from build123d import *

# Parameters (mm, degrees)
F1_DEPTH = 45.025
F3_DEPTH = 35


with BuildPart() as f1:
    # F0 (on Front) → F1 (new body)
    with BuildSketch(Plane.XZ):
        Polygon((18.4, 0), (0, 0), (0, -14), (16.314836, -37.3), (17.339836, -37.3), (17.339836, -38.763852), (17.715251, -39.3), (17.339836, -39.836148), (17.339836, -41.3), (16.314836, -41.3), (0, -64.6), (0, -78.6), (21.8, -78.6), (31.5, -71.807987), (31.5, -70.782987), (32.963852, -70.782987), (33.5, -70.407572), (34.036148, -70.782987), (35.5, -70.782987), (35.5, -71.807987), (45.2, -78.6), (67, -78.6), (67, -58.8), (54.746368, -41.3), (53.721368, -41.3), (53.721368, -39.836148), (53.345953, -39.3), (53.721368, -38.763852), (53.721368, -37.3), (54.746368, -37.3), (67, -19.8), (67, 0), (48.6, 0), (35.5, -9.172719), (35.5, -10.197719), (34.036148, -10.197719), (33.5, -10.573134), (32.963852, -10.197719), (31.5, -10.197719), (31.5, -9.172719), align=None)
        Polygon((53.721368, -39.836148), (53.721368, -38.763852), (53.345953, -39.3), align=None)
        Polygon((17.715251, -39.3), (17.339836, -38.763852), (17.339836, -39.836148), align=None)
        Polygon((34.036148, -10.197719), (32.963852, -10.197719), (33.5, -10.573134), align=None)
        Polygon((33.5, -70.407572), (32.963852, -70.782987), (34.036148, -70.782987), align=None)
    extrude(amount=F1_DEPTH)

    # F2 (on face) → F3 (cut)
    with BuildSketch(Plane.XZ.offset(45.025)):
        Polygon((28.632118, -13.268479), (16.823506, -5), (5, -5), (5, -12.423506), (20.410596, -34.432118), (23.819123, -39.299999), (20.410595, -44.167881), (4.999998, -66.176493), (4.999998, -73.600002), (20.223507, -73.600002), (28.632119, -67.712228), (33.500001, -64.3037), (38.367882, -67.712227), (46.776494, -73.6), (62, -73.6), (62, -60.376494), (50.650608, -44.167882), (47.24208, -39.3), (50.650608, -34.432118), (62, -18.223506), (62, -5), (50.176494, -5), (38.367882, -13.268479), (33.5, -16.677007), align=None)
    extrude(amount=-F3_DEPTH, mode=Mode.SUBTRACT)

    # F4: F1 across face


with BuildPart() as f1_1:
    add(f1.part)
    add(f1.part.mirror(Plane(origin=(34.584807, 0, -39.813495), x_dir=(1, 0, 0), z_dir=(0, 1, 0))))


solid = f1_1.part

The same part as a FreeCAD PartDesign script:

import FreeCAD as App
import Part
import Sketcher
from FreeCAD import Vector
Q = App.Units.Quantity


def add_polygon(sketch, points):
    """Adds a closed chain of lines whose ends are joined by coincident constraints."""
    first, n = sketch.GeometryCount, len(points)
    for a, b in zip(points, points[1:] + points[:1]):
        sketch.addGeometry(Part.LineSegment(App.Vector(*a, 0), App.Vector(*b, 0)), False)
    for i in range(n):
        sketch.addConstraint(Sketcher.Constraint("Coincident", first + i, 2, first + (i + 1) % n, 1))

doc = App.newDocument("Part")
body = doc.addObject("PartDesign::Body", "Body")

sketch1 = body.newObject("Sketcher::SketchObject", "Sketch")
sketch1.AttachmentSupport = (doc.getObject("XZ_Plane"), [""])
sketch1.MapMode = "FlatFace"
add_polygon(sketch1, [(18.4, 0), (0, 0), (0, -14), (16.314836, -37.3), (17.339836, -37.3), (17.339836, -41.3), (16.314836, -41.3), (0, -64.6), (0, -78.6), (21.8, -78.6), (31.5, -71.807987), (31.5, -70.782987), (35.5, -70.782987), (35.5, -71.807987), (45.2, -78.6), (67, -78.6), (67, -58.8), (54.746368, -41.3), (53.721368, -41.3), (53.721368, -37.3), (54.746368, -37.3), (67, -19.8), (67, 0), (48.6, 0), (35.5, -9.172719), (35.5, -10.197719), (31.5, -10.197719), (31.5, -9.172719)])
sketch1.addConstraint([
    Sketcher.Constraint("Horizontal", 0),
    Sketcher.Constraint("Vertical", 1),
    Sketcher.Constraint("Horizontal", 3),
    Sketcher.Constraint("Vertical", 4),
    Sketcher.Constraint("Horizontal", 5),
    Sketcher.Constraint("Vertical", 7),
    Sketcher.Constraint("Horizontal", 8),
    Sketcher.Constraint("Vertical", 10),
    Sketcher.Constraint("Horizontal", 11),
    Sketcher.Constraint("Vertical", 12),
    Sketcher.Constraint("Horizontal", 14),
    Sketcher.Constraint("Vertical", 15),
    Sketcher.Constraint("Horizontal", 17),
    Sketcher.Constraint("Vertical", 18),
    Sketcher.Constraint("Horizontal", 19),
    Sketcher.Constraint("Vertical", 21),
    Sketcher.Constraint("Horizontal", 22),
    Sketcher.Constraint("Vertical", 24),
    Sketcher.Constraint("Horizontal", 25),
    Sketcher.Constraint("Vertical", 26),
    Sketcher.Constraint("Coincident", 0, 2, -1, 1),
    Sketcher.Constraint("PointOnObject", 6, 2, -2),
    Sketcher.Constraint("PointOnObject", 21, 2, -1),
    Sketcher.Constraint("Perpendicular", 2, 9),
    Sketcher.Constraint("Perpendicular", 6, 13),
    Sketcher.Constraint("Perpendicular", 9, 16),
    Sketcher.Constraint("Perpendicular", 13, 20),
    Sketcher.Constraint("Perpendicular", 16, 23),
    Sketcher.Constraint("Perpendicular", 20, 27),
    Sketcher.Constraint("Horizontal", 9, 2, 12, 2),
    Sketcher.Constraint("Horizontal", 8, 2, 13, 2),
    Sketcher.Constraint("Horizontal", 5, 2, 16, 2),
    Sketcher.Constraint("Horizontal", 3, 2, 18, 2),
    Sketcher.Constraint("Horizontal", 23, 2, 26, 2),
    Sketcher.Constraint("Vertical", 2, 2, 5, 2),
    Sketcher.Constraint("Vertical", 16, 2, 19, 2),
    Sketcher.Constraint("Vertical", 15, 2, 20, 2),
    Sketcher.Constraint("Vertical", 12, 2, 23, 2),
    Sketcher.Constraint("Vertical", 10, 2, 25, 2),
    Sketcher.Constraint("Equal", 8, 14),
    Sketcher.Constraint("Equal", 5, 17),
    Sketcher.Constraint("Equal", 0, 22),
    Sketcher.Constraint("Equal", 25, 4),
    Sketcher.Constraint("Equal", 1, 7),
    Sketcher.Constraint("Equal", 19, 10),
    Sketcher.Constraint("Equal", 12, 24),
    Sketcher.Constraint("DistanceX", 11, 1, 11, 2, Q("4 mm")),
    Sketcher.Constraint("DistanceY", 1, 2, 1, 1, Q("14 mm")),
    Sketcher.Constraint("Angle", 2, Q("-54.999999 deg")),
    Sketcher.Constraint("DistanceX", 0, 2, 0, 1, Q("18.4 mm")),
    Sketcher.Constraint("DistanceX", 8, 1, 8, 2, Q("21.8 mm")),
    Sketcher.Constraint("DistanceY", 15, 1, 15, 2, Q("19.8 mm")),
    Sketcher.Constraint("DistanceX", -1, 1, 14, 2, Q("67 mm")),
    Sketcher.Constraint("DistanceY", 15, 2, 20, 2, Q("39 mm")),
    Sketcher.Constraint("DistanceX", 3, 1, 3, 2, Q("1.025 mm")),
])
pad1 = body.newObject("PartDesign::Pad", "Pad")
pad1.Profile = sketch1
pad1.Length = 45.025

sketch2 = body.newObject("Sketcher::SketchObject", "Sketch001")
sketch2.AttachmentSupport = (doc.getObject("XZ_Plane"), [""])
sketch2.MapMode = "FlatFace"
sketch2.AttachmentOffset = App.Placement(Vector(0, 0, 45.025), App.Rotation())
add_polygon(sketch2, [(28.632118, -13.268479), (16.823506, -5), (5, -5), (5, -12.423506), (20.410596, -34.432118), (23.819123, -39.299999), (20.410595, -44.167881), (4.999998, -66.176493), (4.999998, -73.600002), (20.223507, -73.600002), (28.632119, -67.712228), (33.500001, -64.3037), (38.367882, -67.712227), (46.776494, -73.6), (62, -73.6), (62, -60.376494), (50.650608, -44.167882), (47.24208, -39.3), (50.650608, -34.432118), (62, -18.223506), (62, -5), (50.176494, -5), (38.367882, -13.268479), (33.5, -16.677007)])
sketch2.addConstraint([
    Sketcher.Constraint("Horizontal", 1),
    Sketcher.Constraint("Vertical", 2),
    Sketcher.Constraint("Vertical", 7),
    Sketcher.Constraint("Horizontal", 8),
    Sketcher.Constraint("Horizontal", 13),
    Sketcher.Constraint("Vertical", 14),
    Sketcher.Constraint("Vertical", 19),
    Sketcher.Constraint("Horizontal", 20),
    Sketcher.Constraint("Parallel", 3, 4),
    Sketcher.Constraint("Perpendicular", 0, 5),
    Sketcher.Constraint("Parallel", 5, 6),
    Sketcher.Constraint("Perpendicular", 4, 9),
    Sketcher.Constraint("Parallel", 9, 10),
    Sketcher.Constraint("Perpendicular", 6, 11),
    Sketcher.Constraint("Parallel", 11, 12),
    Sketcher.Constraint("Perpendicular", 10, 15),
    Sketcher.Constraint("Parallel", 15, 16),
    Sketcher.Constraint("Perpendicular", 12, 17),
    Sketcher.Constraint("Parallel", 17, 18),
    Sketcher.Constraint("Perpendicular", 16, 21),
    Sketcher.Constraint("Parallel", 21, 22),
    Sketcher.Constraint("Perpendicular", 18, 23),
    Sketcher.Constraint("Horizontal", 9, 2, 11, 2),
    Sketcher.Constraint("Horizontal", 5, 2, 15, 2),
    Sketcher.Constraint("Horizontal", 4, 2, 16, 2),
    Sketcher.Constraint("Horizontal", 3, 2, 17, 2),
    Sketcher.Constraint("Horizontal", 1, 2, 19, 2),
    Sketcher.Constraint("Horizontal", 21, 2, 23, 2),
    Sketcher.Constraint("Vertical", 3, 2, 5, 2),
    Sketcher.Constraint("Vertical", 15, 2, 17, 2),
    Sketcher.Constraint("Vertical", 14, 2, 18, 2),
    Sketcher.Constraint("Vertical", 11, 2, 21, 2),
    Sketcher.Constraint("Vertical", 10, 2, 22, 2),
    Sketcher.Constraint("Equal", 1, 20),
    Sketcher.Constraint("Equal", 14, 19),
    Sketcher.Constraint("Equal", 3, 6),
    Sketcher.Constraint("Equal", 5, 10),
    Sketcher.Constraint("Equal", 9, 12),
    Sketcher.Constraint("Angle", 0, Q("145 deg")),
    Sketcher.Constraint("DistanceY", 0, 2, -1, 1, Q("5 mm")),
    Sketcher.Constraint("DistanceX", -1, 1, 1, 2, Q("5 mm")),
    Sketcher.Constraint("DistanceX", -1, 1, 13, 2, Q("62 mm")),
    Sketcher.Constraint("DistanceY", 4, 2, -1, 1, Q("39.299999 mm")),
    Sketcher.Constraint("DistanceX", 8, 1, 8, 2, Q("15.223509 mm")),
    Sketcher.Constraint("DistanceY", 7, 2, 7, 1, Q("7.423509 mm")),
    Sketcher.Constraint("DistanceX", 6, 2, 3, 2, Q("15.410598 mm")),
    Sketcher.Constraint("Distance", 15, Q("19.787061 mm")),
    Sketcher.Constraint("DistanceX", 1, 2, 1, 1, Q("11.823506 mm")),
])
pocket1 = body.newObject("PartDesign::Pocket", "Pocket")
pocket1.Profile = sketch2
pocket1.Length = 35
body2 = doc.addObject("PartDesign::Body", "Body001")
doc.recompute()

body2.BaseFeature = body
doc.recompute()

mirroring = doc.addObject("Part::Mirroring", "Mirroring")
mirroring.Source = body
mirroring.Base = Vector(34.584807, 0, -39.813495)
mirroring.Normal = Vector(0, 1, 0)
body3 = doc.addObject("PartDesign::Body", "Body002")
body3.BaseFeature = mirroring
boolean = body2.newObject("PartDesign::Boolean", "Boolean")
boolean.Type = "Fuse"
boolean.addObjects([body3])
doc.recompute()
mirroring.Visibility = False

doc.recompute()
